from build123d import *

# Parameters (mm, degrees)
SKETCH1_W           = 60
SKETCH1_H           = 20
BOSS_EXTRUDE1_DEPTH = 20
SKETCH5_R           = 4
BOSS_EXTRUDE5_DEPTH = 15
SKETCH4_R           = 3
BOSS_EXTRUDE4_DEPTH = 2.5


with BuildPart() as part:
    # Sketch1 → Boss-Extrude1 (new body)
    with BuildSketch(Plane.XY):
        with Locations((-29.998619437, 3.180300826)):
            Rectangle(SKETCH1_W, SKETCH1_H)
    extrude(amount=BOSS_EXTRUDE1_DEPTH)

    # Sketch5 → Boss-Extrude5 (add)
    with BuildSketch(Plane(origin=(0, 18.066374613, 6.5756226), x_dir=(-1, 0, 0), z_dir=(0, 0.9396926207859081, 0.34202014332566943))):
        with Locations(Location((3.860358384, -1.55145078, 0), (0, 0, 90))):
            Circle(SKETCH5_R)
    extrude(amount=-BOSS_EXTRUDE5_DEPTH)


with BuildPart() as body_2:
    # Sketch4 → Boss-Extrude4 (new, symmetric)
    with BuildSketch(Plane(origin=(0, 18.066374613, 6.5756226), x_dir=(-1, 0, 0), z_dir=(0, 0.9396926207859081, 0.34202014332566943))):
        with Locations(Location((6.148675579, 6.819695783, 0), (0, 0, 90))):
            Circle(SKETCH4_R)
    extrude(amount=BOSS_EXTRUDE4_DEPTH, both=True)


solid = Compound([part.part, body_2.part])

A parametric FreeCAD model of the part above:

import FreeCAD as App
import Part
import Sketcher
from FreeCAD import Vector
Q = App.Units.Quantity


def add_polygon(sketch, points):
    """Adds a closed chain of lines whose ends are joined by coincident constraints."""
    first, n = sketch.GeometryCount, len(points)
    for a, b in zip(points, points[1:] + points[:1]):
        sketch.addGeometry(Part.LineSegment(App.Vector(*a, 0), App.Vector(*b, 0)), False)
    for i in range(n):
        sketch.addConstraint(Sketcher.Constraint("Coincident", first + i, 2, first + (i + 1) % n, 1))

doc = App.newDocument("Part")
body = doc.addObject("PartDesign::Body", "Body")

# Sketch on XY plane
sketch1 = body.newObject("Sketcher::SketchObject", "Sketch")
sketch1.AttachmentSupport = (doc.getObject("XY_Plane"), [""])
sketch1.MapMode = "FlatFace"
add_polygon(sketch1, [(-59.998619, 13.180301), (-59.998619, -6.819699), (0.001381, -6.819699), (0.001381, 13.180301)])  # lines 0-3
sketch1.addConstraint([
    Sketcher.Constraint("Vertical", 0),
    Sketcher.Constraint("Horizontal", 1),
    Sketcher.Constraint("Vertical", 2),
    Sketcher.Constraint("Horizontal", 3),
    Sketcher.Constraint("DistanceX", 1, 1, 1, 2, Q("60 mm")),
    Sketcher.Constraint("DistanceY", 0, 2, 0, 1, Q("20 mm")),
    Sketcher.Constraint("DistanceY", 0, 2, -1, 1, Q("6.819699 mm")),
    Sketcher.Constraint("DistanceX", 0, 2, -1, 1, Q("59.998619 mm")),
])
pad1 = body.newObject("PartDesign::Pad", "Pad")
pad1.Profile = sketch1
pad1.Length = 20

# Sketch on an angled plane
sketch2 = body.newObject("Sketcher::SketchObject", "Sketch001")
sketch2.Placement = App.Placement(Vector(0, 18.066375, 6.575623), App.Rotation(Vector(-1, 0, 0), Vector(0, -0.342020143, 0.939692621), Vector(0, 0.939692621, 0.342020143), "ZXY"))
sketch2.addGeometry(Part.Circle(Vector(3.860358, -1.551451, 0), Vector(0, 0, 1), 4), False)
sketch2.addConstraint([
    Sketcher.Constraint("Diameter", 0, Q("8 mm")),
    Sketcher.Constraint("DistanceX", -1, 1, 0, 3, Q("3.860358 mm")),
    Sketcher.Constraint("DistanceY", 0, 3, -1, 1, Q("1.551451 mm")),
])
pad2 = body.newObject("PartDesign::Pad", "Pad001")
pad2.Profile = sketch2
pad2.Length = 15
pad2.Reversed = True
body2 = doc.addObject("PartDesign::Body", "Body001")

# Sketch on an angled plane
sketch3 = body2.newObject("Sketcher::SketchObject", "Sketch002")
sketch3.Placement = App.Placement(Vector(0, 18.066375, 6.575623), App.Rotation(Vector(-1, 0, 0), Vector(0, -0.342020143, 0.939692621), Vector(0, 0.939692621, 0.342020143), "ZXY"))
sketch3.addGeometry(Part.Circle(Vector(6.148676, 6.819696, 0), Vector(0, 0, 1), 3), False)
sketch3.addConstraint([
    Sketcher.Constraint("Diameter", 0, Q("6 mm")),
    Sketcher.Constraint("DistanceX", -1, 1, 0, 3, Q("6.148676 mm")),
    Sketcher.Constraint("DistanceY", -1, 1, 0, 3, Q("6.819696 mm")),
])
pad3 = body2.newObject("PartDesign::Pad", "Pad002")
pad3.Profile = sketch3
pad3.Length = 5
pad3.Midplane = True

doc.recompute()
